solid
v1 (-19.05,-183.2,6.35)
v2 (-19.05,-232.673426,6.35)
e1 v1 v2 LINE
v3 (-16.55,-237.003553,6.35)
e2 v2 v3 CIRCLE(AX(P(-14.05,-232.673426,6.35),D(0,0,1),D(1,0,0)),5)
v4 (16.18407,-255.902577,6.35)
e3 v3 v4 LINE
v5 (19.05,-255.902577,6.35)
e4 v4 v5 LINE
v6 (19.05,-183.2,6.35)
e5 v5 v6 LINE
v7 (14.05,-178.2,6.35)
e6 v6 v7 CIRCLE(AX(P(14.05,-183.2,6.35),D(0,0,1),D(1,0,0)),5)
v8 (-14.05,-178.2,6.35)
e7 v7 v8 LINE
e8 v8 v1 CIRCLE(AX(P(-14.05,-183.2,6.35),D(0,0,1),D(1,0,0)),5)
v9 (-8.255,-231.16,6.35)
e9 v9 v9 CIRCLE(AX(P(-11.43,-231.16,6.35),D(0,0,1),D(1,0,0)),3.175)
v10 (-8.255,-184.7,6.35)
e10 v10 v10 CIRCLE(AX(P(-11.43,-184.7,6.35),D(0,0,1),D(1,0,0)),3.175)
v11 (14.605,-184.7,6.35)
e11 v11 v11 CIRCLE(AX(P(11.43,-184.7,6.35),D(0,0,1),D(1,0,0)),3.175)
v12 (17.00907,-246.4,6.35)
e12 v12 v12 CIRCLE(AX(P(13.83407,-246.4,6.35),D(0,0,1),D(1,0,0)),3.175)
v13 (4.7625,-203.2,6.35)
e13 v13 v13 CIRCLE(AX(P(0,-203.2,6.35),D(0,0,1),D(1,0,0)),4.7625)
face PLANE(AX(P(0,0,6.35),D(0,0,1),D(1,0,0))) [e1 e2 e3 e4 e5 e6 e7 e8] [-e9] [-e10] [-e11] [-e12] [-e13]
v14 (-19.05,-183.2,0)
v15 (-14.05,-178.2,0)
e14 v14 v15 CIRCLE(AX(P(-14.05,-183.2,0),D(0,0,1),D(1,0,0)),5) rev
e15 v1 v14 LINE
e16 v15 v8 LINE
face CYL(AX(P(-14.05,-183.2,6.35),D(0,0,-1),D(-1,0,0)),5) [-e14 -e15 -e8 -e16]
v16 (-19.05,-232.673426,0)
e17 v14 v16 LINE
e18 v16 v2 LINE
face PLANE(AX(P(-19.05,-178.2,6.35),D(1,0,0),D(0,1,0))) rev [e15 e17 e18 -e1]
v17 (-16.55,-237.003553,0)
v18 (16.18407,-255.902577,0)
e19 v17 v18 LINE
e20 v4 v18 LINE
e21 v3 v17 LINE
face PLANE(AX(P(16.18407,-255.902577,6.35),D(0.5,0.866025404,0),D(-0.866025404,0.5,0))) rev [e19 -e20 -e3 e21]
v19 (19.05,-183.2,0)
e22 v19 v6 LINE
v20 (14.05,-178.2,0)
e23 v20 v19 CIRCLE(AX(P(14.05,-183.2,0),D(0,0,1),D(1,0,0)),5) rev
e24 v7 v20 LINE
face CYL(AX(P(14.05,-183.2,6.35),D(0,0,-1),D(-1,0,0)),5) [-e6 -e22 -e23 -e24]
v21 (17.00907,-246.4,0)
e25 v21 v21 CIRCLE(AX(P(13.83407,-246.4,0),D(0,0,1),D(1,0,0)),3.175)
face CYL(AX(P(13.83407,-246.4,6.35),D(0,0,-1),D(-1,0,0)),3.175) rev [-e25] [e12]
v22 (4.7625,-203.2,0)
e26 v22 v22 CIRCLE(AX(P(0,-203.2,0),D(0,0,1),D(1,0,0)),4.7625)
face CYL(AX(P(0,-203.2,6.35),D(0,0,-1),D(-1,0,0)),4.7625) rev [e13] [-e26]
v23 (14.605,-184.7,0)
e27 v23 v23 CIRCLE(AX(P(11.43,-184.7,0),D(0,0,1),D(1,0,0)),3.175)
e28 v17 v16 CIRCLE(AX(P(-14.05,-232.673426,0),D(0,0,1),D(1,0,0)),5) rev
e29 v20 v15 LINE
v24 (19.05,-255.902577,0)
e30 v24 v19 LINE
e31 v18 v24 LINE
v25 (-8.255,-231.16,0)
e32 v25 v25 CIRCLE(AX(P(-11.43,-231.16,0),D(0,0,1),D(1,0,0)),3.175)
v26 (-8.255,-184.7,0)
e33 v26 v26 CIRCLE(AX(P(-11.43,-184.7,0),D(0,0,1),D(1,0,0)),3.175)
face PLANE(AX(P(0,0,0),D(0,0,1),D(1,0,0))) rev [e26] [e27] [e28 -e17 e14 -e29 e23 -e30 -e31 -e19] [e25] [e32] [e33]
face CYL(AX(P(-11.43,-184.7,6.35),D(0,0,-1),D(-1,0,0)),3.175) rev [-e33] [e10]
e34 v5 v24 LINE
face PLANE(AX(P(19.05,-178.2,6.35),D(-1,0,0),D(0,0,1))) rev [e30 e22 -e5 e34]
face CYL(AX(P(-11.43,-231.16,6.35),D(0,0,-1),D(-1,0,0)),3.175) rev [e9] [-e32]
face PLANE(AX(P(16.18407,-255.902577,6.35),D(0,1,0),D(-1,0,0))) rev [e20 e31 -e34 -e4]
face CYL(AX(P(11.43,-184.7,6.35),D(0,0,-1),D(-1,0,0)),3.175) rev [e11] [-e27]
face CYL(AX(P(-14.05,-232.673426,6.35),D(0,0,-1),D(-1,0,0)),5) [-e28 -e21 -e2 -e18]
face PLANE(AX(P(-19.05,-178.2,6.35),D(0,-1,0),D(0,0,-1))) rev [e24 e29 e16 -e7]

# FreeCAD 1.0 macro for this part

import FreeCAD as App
import Part
import Sketcher
from FreeCAD import Vector
Q = App.Units.Quantity


def edges_at(feature, points):
    """Names of the edges that pass closest to the given points."""
    edges = feature.Shape.Edges
    near = lambda p: min(range(len(edges)), key=lambda i: edges[i].distToShape(Part.Vertex(*p))[0])
    return sorted({f"Edge{near(p) + 1}" for p in points})


def add_polygon(sketch, points):
    """Adds a closed chain of lines whose ends are joined by coincident constraints."""
    first, n = sketch.GeometryCount, len(points)
    for a, b in zip(points, points[1:] + points[:1]):
        sketch.addGeometry(Part.LineSegment(App.Vector(*a, 0), App.Vector(*b, 0)), False)
    for i in range(n):
        sketch.addConstraint(Sketcher.Constraint("Coincident", first + i, 2, first + (i + 1) % n, 1))

doc = App.newDocument("Part")
body = doc.addObject("PartDesign::Body", "Body")

sketch1 = body.newObject("Sketcher::SketchObject", "Sketch")
sketch1.AttachmentSupport = (doc.getObject("XY_Plane"), [""])
sketch1.MapMode = "FlatFace"
add_polygon(sketch1, [(-19.1, -235.6), (16.2, -255.9), (19.1, -255.9), (19.1, -178.2), (-19.1, -178.2)])
sketch1.addGeometry(Part.Circle(Vector(13.8, -246.4, 0), Vector(0, 0, 1), 3.2), False)
sketch1.addGeometry(Part.Circle(Vector(-11.4, -231.2, 0), Vector(0, 0, 1), 3.2), False)
sketch1.addGeometry(Part.Circle(Vector(11.4, -184.7, 0), Vector(0, 0, 1), 3.2), False)
sketch1.addGeometry(Part.Circle(Vector(0, -203.2, 0), Vector(0, 0, 1), 4.8), False)
sketch1.addGeometry(Part.Circle(Vector(-11.4, -184.7, 0), Vector(0, 0, 1), 3.2), False)
sketch1.addConstraint([
    Sketcher.Constraint("Horizontal", 1),
    Sketcher.Constraint("Vertical", 2),
    Sketcher.Constraint("Horizontal", 3),
    Sketcher.Constraint("Vertical", 4),
    Sketcher.Constraint("Equal", 5, 6),
    Sketcher.Constraint("Equal", 6, 7),
    Sketcher.Constraint("Equal", 7, 9),
    Sketcher.Constraint("Symmetric", 7, 3, 9, 3, -2),
    Sketcher.Constraint("PointOnObject", 8, 3, -2),
    Sketcher.Constraint("Vertical", 6, 3, 9, 3),
    Sketcher.Constraint("Diameter", 5, Q("0.25 in")),
    Sketcher.Constraint("Diameter", 8, Q("0.375 in")),
    Sketcher.Constraint("DistanceX", 3, 2, 3, 1, Q("1.5 in")),
    Sketcher.Constraint("DistanceY", 8, 3, -1, 1, Q("8 in")),
    Sketcher.Constraint("Angle", 0, Q("-30 deg")),
    Sketcher.Constraint("DistanceY", 5, 3, 6, 3, Q("0.6 in")),
    Sketcher.Constraint("DistanceX", 6, 3, 7, 3, Q("0.9 in")),
    Sketcher.Constraint("DistanceX", 6, 3, 1, 2, Q("1.2 in")),
    Sketcher.Constraint("Distance", 0, Q("40.6848 mm")),
    Sketcher.Constraint("DistanceY", 5, 3, -1, 1, Q("246.4 mm")),
    Sketcher.Constraint("DistanceY", 7, 3, -1, 1, Q("184.7 mm")),
    Sketcher.Constraint("DistanceY", 2, 2, -1, 1, Q("178.2 mm")),
    Sketcher.Constraint("DistanceX", 5, 3, 0, 2, Q("2.35 mm")),
    Sketcher.Constraint("DistanceY", 2, 1, 2, 2, Q("77.702577 mm")),
])
pad1 = body.newObject("PartDesign::Pad", "Pad")
pad1.Profile = sketch1
pad1.Length = Q("0.25 in")
doc.recompute()

fillet = body.newObject("PartDesign::Fillet", "Fillet")
fillet.Base = (pad1, edges_at(pad1, [(-19.05, -235.56, 3.175), (-19.05, -178.2, 3.175), (19.05, -178.2, 3.175)]))
fillet.Radius = 5

doc.recompute()
